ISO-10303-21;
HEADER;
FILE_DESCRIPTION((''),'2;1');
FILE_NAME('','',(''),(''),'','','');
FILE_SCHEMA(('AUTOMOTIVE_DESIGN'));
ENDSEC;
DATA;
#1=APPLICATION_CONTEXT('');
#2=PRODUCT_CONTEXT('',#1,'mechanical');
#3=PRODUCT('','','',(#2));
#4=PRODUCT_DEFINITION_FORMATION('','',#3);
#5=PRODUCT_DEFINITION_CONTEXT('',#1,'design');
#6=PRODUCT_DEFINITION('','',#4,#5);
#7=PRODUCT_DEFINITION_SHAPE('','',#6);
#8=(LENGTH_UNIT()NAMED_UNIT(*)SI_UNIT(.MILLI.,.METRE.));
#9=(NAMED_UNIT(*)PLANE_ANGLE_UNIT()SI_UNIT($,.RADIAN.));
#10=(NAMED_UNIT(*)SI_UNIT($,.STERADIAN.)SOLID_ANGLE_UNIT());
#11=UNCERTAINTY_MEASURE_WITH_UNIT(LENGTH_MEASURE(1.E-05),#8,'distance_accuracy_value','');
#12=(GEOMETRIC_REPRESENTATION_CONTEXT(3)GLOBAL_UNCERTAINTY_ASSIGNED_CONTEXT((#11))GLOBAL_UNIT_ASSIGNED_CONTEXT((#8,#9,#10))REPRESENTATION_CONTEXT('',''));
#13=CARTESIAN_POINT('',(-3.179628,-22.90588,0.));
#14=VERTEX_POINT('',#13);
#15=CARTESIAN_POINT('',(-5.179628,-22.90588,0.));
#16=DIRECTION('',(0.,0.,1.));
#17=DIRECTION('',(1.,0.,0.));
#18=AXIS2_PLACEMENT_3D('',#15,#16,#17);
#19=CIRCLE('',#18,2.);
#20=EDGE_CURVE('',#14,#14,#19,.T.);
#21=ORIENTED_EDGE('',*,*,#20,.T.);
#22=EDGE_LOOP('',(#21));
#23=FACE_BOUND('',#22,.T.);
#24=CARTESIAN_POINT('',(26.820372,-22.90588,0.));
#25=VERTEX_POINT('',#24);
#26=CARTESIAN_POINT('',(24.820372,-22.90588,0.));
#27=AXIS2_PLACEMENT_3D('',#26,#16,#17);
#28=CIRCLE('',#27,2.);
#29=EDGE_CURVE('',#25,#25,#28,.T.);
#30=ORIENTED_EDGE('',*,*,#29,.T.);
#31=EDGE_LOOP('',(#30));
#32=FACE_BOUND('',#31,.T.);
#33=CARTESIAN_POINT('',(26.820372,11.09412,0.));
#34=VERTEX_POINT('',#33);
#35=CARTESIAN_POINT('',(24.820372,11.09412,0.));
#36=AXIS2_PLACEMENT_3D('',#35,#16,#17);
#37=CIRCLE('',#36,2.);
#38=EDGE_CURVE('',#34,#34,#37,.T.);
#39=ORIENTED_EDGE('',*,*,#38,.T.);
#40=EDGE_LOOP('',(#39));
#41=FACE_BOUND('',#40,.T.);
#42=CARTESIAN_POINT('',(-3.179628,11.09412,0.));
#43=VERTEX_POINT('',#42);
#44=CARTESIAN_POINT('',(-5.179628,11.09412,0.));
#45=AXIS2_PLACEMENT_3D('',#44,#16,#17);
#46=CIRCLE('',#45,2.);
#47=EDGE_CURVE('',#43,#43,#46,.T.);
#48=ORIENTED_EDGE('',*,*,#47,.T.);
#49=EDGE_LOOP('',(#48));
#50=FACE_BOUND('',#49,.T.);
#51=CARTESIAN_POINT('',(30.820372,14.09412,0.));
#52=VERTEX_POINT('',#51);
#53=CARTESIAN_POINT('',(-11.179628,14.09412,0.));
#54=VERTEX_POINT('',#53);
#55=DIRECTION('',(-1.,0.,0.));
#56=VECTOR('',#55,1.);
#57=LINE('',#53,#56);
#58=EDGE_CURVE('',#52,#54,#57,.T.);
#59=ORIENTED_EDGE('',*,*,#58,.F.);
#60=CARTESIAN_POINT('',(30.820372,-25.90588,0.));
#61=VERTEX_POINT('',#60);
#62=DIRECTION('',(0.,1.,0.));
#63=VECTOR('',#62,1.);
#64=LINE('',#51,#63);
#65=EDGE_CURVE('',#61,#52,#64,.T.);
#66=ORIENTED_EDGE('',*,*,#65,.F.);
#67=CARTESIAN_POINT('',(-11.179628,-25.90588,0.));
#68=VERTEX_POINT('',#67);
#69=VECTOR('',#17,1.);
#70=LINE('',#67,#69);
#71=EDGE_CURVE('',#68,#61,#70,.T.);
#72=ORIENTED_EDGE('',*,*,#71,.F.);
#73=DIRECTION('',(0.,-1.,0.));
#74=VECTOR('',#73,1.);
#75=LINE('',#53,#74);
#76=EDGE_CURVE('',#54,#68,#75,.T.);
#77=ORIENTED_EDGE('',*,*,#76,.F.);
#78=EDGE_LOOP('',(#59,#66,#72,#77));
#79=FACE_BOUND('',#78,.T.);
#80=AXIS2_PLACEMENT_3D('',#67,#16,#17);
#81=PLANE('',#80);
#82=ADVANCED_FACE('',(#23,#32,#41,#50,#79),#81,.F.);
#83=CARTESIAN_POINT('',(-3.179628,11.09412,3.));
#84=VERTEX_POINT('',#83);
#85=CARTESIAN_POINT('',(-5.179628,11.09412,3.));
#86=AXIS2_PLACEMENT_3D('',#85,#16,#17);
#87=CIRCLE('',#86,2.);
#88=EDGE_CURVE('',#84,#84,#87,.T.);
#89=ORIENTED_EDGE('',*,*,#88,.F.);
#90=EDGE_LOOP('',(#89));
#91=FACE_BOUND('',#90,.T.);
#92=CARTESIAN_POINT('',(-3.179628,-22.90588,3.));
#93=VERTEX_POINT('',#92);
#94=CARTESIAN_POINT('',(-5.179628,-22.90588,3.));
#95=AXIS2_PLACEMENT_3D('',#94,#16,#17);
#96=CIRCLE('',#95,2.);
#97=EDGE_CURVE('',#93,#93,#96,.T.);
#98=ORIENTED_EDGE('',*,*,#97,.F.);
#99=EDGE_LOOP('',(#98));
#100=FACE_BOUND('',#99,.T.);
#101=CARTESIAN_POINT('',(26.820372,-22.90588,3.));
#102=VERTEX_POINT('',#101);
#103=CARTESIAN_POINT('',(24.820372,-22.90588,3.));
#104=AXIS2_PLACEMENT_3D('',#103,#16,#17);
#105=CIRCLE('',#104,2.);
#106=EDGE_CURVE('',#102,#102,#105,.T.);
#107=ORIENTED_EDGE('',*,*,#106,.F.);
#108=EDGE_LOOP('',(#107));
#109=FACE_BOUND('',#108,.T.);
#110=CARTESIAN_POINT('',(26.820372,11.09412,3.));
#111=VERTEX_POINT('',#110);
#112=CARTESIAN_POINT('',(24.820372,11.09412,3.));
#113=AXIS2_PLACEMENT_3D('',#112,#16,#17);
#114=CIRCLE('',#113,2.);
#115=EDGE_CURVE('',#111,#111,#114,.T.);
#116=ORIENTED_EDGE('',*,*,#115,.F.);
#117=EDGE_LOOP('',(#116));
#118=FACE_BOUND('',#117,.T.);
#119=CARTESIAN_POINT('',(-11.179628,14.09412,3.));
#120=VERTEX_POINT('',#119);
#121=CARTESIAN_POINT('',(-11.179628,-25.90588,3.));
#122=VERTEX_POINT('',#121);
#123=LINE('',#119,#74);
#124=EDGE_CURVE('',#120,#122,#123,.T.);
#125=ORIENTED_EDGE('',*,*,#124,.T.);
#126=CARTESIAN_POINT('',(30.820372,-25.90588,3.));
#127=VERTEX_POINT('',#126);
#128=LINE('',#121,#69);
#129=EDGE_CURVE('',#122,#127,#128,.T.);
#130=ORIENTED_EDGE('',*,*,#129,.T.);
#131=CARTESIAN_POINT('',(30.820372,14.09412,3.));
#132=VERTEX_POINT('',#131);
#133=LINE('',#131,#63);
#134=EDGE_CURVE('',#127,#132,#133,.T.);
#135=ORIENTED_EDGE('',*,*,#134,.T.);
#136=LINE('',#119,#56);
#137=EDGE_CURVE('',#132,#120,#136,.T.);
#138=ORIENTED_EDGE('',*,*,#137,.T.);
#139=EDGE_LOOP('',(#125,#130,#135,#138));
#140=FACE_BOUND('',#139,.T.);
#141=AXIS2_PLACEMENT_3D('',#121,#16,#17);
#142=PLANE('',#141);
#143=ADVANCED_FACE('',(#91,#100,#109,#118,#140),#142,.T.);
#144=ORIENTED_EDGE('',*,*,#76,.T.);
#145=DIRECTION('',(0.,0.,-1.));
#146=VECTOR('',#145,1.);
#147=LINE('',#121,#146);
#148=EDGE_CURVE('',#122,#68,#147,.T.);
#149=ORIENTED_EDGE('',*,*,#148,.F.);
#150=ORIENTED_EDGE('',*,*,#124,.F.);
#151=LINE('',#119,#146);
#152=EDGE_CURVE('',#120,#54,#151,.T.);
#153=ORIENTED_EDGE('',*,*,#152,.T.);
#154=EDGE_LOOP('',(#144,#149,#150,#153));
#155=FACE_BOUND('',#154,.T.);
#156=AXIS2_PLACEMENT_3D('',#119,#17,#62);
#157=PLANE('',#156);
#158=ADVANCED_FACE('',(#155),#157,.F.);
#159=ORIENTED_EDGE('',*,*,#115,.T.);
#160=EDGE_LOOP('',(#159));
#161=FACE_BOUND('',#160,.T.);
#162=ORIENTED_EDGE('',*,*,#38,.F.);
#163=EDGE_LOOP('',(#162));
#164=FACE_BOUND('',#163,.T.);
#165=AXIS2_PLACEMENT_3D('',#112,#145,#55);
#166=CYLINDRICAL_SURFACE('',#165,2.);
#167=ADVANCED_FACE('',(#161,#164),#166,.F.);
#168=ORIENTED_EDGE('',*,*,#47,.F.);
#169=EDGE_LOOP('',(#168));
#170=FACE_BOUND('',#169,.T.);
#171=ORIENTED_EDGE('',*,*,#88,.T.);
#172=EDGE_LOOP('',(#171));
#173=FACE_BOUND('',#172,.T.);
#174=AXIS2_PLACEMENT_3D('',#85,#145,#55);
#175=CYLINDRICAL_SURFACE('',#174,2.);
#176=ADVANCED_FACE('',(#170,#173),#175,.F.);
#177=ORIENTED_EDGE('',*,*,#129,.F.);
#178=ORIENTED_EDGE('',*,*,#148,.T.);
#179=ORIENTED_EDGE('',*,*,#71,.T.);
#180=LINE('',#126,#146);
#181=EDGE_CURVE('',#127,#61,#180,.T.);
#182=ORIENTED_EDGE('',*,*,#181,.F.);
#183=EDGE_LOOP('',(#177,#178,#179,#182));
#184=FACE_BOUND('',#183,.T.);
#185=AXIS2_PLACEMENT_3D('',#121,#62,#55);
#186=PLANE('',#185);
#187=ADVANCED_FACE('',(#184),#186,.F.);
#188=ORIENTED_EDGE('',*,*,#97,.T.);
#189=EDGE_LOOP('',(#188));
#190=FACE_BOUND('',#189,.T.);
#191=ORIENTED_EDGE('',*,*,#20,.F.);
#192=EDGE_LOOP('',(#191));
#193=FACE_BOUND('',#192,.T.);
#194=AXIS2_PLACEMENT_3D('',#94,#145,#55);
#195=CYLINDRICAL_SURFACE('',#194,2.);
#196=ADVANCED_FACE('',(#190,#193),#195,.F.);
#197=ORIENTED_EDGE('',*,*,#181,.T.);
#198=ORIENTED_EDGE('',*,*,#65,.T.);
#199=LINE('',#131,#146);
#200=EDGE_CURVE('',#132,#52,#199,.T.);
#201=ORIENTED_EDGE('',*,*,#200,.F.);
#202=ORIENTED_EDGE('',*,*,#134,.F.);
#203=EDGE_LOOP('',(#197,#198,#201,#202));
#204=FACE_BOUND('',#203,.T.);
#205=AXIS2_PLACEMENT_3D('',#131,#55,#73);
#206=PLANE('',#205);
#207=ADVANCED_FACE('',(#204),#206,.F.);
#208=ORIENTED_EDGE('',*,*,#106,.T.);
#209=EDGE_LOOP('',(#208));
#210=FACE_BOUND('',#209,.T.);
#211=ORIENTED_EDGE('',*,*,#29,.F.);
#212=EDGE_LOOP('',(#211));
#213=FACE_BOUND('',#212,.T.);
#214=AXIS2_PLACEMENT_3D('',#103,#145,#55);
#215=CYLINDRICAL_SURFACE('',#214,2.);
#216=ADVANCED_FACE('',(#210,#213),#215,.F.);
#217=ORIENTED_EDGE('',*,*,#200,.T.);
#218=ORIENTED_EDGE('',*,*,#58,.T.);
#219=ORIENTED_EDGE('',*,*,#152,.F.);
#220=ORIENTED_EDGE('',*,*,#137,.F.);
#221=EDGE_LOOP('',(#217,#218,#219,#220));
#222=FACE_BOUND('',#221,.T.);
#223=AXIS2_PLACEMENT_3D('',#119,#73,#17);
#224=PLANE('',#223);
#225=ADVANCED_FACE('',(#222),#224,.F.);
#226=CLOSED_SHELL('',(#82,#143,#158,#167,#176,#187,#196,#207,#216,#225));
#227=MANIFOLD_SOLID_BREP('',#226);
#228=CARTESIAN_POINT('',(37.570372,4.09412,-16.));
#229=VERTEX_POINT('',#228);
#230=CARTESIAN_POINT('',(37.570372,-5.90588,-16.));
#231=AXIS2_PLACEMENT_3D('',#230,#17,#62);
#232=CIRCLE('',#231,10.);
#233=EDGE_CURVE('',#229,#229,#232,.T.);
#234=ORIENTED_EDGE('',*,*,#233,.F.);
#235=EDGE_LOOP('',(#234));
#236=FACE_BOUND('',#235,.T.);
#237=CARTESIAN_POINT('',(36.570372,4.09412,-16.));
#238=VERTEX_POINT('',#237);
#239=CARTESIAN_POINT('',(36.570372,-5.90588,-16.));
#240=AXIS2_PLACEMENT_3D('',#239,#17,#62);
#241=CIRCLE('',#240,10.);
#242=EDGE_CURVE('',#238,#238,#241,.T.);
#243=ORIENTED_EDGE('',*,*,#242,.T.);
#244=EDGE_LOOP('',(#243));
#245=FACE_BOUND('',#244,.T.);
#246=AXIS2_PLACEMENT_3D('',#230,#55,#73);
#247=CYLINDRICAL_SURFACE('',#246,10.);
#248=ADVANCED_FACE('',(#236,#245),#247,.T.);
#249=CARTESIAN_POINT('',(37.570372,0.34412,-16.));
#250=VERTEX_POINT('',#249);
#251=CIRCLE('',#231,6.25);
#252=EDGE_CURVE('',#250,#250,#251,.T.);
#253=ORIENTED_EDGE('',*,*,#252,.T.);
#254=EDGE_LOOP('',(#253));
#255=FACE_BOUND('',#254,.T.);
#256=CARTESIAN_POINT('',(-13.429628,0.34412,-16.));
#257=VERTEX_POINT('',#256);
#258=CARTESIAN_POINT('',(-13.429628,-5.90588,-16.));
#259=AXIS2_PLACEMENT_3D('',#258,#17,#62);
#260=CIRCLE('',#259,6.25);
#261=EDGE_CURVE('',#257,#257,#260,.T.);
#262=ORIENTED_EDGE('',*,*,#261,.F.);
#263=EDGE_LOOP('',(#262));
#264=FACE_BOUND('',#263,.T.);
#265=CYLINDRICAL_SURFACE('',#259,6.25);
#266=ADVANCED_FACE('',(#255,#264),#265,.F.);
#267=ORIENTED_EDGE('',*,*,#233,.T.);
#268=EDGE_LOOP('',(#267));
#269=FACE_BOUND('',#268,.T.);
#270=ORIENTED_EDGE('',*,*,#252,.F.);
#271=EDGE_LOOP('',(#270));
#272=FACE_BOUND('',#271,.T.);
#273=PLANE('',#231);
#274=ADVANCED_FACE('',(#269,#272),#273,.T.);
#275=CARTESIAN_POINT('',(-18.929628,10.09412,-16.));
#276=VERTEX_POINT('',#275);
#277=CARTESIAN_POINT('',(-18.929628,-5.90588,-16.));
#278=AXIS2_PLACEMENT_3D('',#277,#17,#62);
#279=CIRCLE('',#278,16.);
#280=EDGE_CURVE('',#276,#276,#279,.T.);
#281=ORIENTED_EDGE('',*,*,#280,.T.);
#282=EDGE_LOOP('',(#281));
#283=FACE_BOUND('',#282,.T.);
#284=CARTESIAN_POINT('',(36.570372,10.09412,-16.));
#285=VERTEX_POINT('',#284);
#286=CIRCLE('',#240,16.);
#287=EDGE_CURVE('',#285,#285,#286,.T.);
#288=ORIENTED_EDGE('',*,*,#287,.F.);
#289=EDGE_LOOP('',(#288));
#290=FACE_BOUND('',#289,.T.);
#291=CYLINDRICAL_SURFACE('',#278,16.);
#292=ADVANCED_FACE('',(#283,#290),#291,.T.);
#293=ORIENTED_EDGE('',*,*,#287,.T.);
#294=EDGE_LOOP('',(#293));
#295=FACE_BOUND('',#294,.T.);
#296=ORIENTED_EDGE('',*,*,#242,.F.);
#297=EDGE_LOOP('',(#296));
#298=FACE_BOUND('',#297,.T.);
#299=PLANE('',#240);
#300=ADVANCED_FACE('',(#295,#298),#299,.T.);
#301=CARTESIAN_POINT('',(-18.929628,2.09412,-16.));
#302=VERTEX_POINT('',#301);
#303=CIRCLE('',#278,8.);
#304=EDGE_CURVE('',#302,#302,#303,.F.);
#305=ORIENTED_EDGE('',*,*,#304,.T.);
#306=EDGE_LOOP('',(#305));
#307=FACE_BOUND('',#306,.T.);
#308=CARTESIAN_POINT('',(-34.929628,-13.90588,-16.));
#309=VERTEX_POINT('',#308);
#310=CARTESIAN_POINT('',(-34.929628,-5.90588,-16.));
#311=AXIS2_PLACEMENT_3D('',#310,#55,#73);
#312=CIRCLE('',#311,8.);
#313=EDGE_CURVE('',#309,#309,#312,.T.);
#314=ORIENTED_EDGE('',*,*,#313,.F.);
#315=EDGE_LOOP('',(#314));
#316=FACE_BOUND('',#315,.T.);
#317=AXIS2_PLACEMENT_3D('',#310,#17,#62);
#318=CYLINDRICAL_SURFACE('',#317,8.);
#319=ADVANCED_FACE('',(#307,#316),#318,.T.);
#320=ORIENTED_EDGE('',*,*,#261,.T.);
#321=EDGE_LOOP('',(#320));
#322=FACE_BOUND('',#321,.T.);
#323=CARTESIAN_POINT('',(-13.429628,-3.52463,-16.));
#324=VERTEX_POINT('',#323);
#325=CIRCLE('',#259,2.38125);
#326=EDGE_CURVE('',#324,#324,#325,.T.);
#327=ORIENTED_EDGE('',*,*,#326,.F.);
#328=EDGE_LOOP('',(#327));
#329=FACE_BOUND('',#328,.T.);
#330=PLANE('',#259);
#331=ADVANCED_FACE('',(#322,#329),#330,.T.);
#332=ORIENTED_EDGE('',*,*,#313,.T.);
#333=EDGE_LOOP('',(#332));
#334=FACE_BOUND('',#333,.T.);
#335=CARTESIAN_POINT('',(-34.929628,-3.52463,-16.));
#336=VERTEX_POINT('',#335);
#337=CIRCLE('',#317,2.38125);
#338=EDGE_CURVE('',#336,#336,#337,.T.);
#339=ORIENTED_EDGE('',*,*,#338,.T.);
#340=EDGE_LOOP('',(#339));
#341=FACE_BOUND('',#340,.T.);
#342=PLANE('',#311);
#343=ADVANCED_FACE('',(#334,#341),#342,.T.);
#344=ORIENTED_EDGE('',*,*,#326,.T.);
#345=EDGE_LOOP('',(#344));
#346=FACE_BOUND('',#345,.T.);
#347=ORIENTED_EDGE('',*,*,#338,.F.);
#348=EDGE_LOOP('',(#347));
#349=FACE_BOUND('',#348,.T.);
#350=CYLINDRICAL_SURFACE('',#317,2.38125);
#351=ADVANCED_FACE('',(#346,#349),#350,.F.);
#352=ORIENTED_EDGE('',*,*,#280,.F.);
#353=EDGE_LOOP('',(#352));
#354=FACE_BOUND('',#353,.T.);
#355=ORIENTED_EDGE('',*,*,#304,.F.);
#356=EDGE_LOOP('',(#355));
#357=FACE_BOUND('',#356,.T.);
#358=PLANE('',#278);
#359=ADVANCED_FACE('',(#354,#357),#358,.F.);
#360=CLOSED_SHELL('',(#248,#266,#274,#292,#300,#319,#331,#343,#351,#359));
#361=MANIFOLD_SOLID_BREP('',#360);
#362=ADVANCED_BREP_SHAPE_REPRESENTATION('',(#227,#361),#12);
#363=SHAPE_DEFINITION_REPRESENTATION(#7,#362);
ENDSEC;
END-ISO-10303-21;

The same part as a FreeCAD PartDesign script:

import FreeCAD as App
import Part
import Sketcher
Q = App.Units.Quantity


def add_polygon(sketch, points):
    """Adds a closed chain of lines whose ends are joined by coincident constraints."""
    first, n = sketch.GeometryCount, len(points)
    for a, b in zip(points, points[1:] + points[:1]):
        sketch.addGeometry(Part.LineSegment(App.Vector(*a, 0), App.Vector(*b, 0)), False)
    for i in range(n):
        sketch.addConstraint(Sketcher.Constraint("Coincident", first + i, 2, first + (i + 1) % n, 1))

doc = App.newDocument("Part")
body = doc.addObject("PartDesign::Body", "Body")

sketch1 = body.newObject("Sketcher::SketchObject", "Sketch")
sketch1.AttachmentSupport = (doc.getObject("XY_Plane"), [""])
sketch1.MapMode = "FlatFace"
add_polygon(sketch1, [(-11.2, 14.1), (-11.2, -25.9), (30.8, -25.9), (30.8, 14.1)])
sketch1.addGeometry(Part.Circle(App.Vector(-5.2, -22.9, 0), App.Vector(0, 0, 1), 2), False)
sketch1.addGeometry(Part.Circle(App.Vector(24.8, -22.9, 0), App.Vector(0, 0, 1), 2), False)
sketch1.addGeometry(Part.Circle(App.Vector(-5.2, 11.1, 0), App.Vector(0, 0, 1), 2), False)
sketch1.addGeometry(Part.Circle(App.Vector(24.8, 11.1, 0), App.Vector(0, 0, 1), 2), False)
sketch1.addConstraint(Sketcher.Constraint("Vertical", 0))
sketch1.addConstraint(Sketcher.Constraint("Horizontal", 1))
sketch1.addConstraint(Sketcher.Constraint("Vertical", 2))
sketch1.addConstraint(Sketcher.Constraint("Horizontal", 3))
sketch1.addConstraint(Sketcher.Constraint("Equal", 4, 5))
sketch1.addConstraint(Sketcher.Constraint("Equal", 5, 6))
sketch1.addConstraint(Sketcher.Constraint("Equal", 6, 7))
sketch1.addConstraint(Sketcher.Constraint("Horizontal", 4, 3, 5, 3))
sketch1.addConstraint(Sketcher.Constraint("Horizontal", 6, 3, 7, 3))
sketch1.addConstraint(Sketcher.Constraint("Vertical", 4, 3, 6, 3))
sketch1.addConstraint(Sketcher.Constraint("Vertical", 5, 3, 7, 3))
sketch1.addConstraint(Sketcher.Constraint("Diameter", 4, Q("4 mm")))
sketch1.addConstraint(Sketcher.Constraint("DistanceX", 1, 1, 1, 2, Q("42 mm")))
sketch1.addConstraint(Sketcher.Constraint("DistanceY", 0, 2, 0, 1, Q("40 mm")))
sketch1.addConstraint(Sketcher.Constraint("DistanceX", 4, 3, 5, 3, Q("30 mm")))
sketch1.addConstraint(Sketcher.Constraint("DistanceY", 4, 3, 6, 3, Q("34 mm")))
sketch1.addConstraint(Sketcher.Constraint("DistanceX", 0, 2, 4, 3, Q("6 mm")))
sketch1.addConstraint(Sketcher.Constraint("DistanceY", 0, 2, 4, 3, Q("3 mm")))
sketch1.addConstraint(Sketcher.Constraint("DistanceY", 4, 3, -1, 1, Q("22.90588 mm")))
sketch1.addConstraint(Sketcher.Constraint("DistanceX", 4, 3, -1, 1, Q("5.179628 mm")))
pad1 = body.newObject("PartDesign::Pad", "Pad")
pad1.Profile = sketch1
pad1.Length = 3
body2 = doc.addObject("PartDesign::Body", "Body001")

sketch2 = body2.newObject("Sketcher::SketchObject", "Sketch001")
sketch2.AttachmentSupport = (doc.getObject("YZ_Plane001"), [""])
sketch2.MapMode = "FlatFace"
sketch2.AttachmentOffset = App.Placement(App.Vector(0, 0, 8.820372), App.Rotation())
sketch2.addGeometry(Part.Circle(App.Vector(-6, -16, 0), App.Vector(0, 0, 1), 16), False)
sketch2.addConstraint(Sketcher.Constraint("Diameter", 0, Q("32 mm")))
sketch2.addConstraint(Sketcher.Constraint("DistanceY", 0, 3, -1, 1, Q("16 mm")))
sketch2.addConstraint(Sketcher.Constraint("DistanceX", 0, 3, -1, 1, Q("5.90588 mm")))
pad2 = body2.newObject("PartDesign::Pad", "Pad001")
pad2.Profile = sketch2
pad2.Type = "TwoLengths"
pad2.Length = 27.75
pad2.Length2 = 27.75

sketch3 = body2.newObject("Sketcher::SketchObject", "Sketch002")
sketch3.AttachmentSupport = (doc.getObject("YZ_Plane001"), [""])
sketch3.MapMode = "FlatFace"
sketch3.AttachmentOffset = App.Placement(App.Vector(0, 0, -18.929628), App.Rotation())
sketch3.addGeometry(Part.Circle(App.Vector(-6, -16, 0), App.Vector(0, 0, 1), 8), False)
sketch3.addConstraint(Sketcher.Constraint("Diameter", 0, Q("16 mm")))
sketch3.addConstraint(Sketcher.Constraint("DistanceY", 0, 3, -1, 1, Q("16 mm")))
sketch3.addConstraint(Sketcher.Constraint("DistanceX", 0, 3, -1, 1, Q("5.90588 mm")))
pad3 = body2.newObject("PartDesign::Pad", "Pad002")
pad3.Profile = sketch3
pad3.Length = 16
pad3.Reversed = True

sketch4 = body2.newObject("Sketcher::SketchObject", "Sketch003")
sketch4.AttachmentSupport = (doc.getObject("YZ_Plane001"), [""])
sketch4.MapMode = "FlatFace"
sketch4.AttachmentOffset = App.Placement(App.Vector(0, 0, 36.570372), App.Rotation())
sketch4.addGeometry(Part.Circle(App.Vector(-6, -16, 0), App.Vector(0, 0, 1), 10), False)
sketch4.addConstraint(Sketcher.Constraint("Diameter", 0, Q("20 mm")))
sketch4.addConstraint(Sketcher.Constraint("DistanceY", 0, 3, -1, 1, Q("16 mm")))
sketch4.addConstraint(Sketcher.Constraint("DistanceX", 0, 3, -1, 1, Q("5.90588 mm")))
pad4 = body2.newObject("PartDesign::Pad", "Pad003")
pad4.Profile = sketch4
pad4.Length = 1

sketch5 = body2.newObject("Sketcher::SketchObject", "Sketch004")
sketch5.AttachmentSupport = (doc.getObject("YZ_Plane001"), [""])
sketch5.MapMode = "FlatFace"
sketch5.AttachmentOffset = App.Placement(App.Vector(0, 0, 37.570372), App.Rotation())
sketch5.addGeometry(Part.Circle(App.Vector(-6, -16, 0), App.Vector(0, 0, 1), 6), False)
sketch5.addConstraint(Sketcher.Constraint("Diameter", 0, Q("12.5 mm")))
sketch5.addConstraint(Sketcher.Constraint("DistanceY", 0, 3, -1, 1, Q("16 mm")))
sketch5.addConstraint(Sketcher.Constraint("DistanceX", 0, 3, -1, 1, Q("5.90588 mm")))
pocket1 = body2.newObject("PartDesign::Pocket", "Pocket")
pocket1.Profile = sketch5
pocket1.Length = 51

sketch6 = body2.newObject("Sketcher::SketchObject", "Sketch005")
sketch6.AttachmentSupport = (doc.getObject("YZ_Plane001"), [""])
sketch6.MapMode = "FlatFace"
sketch6.AttachmentOffset = App.Placement(App.Vector(0, 0, -13.429628), App.Rotation())
sketch6.addGeometry(Part.Circle(App.Vector(-5.9, -16, 0), App.Vector(0, 0, 1), 2.4), False)
sketch6.addConstraint(Sketcher.Constraint("DistanceY", 0, 3, -1, 1, Q("16 mm")))
sketch6.addConstraint(Sketcher.Constraint("Diameter", 0, Q("4.7625 mm")))
sketch6.addConstraint(Sketcher.Constraint("DistanceX", 0, 3, -1, 1, Q("5.90588 mm")))
pocket2 = body2.newObject("PartDesign::Pocket", "Pocket001")
pocket2.Profile = sketch6
pocket2.Type = "ThroughAll"

doc.recompute()
